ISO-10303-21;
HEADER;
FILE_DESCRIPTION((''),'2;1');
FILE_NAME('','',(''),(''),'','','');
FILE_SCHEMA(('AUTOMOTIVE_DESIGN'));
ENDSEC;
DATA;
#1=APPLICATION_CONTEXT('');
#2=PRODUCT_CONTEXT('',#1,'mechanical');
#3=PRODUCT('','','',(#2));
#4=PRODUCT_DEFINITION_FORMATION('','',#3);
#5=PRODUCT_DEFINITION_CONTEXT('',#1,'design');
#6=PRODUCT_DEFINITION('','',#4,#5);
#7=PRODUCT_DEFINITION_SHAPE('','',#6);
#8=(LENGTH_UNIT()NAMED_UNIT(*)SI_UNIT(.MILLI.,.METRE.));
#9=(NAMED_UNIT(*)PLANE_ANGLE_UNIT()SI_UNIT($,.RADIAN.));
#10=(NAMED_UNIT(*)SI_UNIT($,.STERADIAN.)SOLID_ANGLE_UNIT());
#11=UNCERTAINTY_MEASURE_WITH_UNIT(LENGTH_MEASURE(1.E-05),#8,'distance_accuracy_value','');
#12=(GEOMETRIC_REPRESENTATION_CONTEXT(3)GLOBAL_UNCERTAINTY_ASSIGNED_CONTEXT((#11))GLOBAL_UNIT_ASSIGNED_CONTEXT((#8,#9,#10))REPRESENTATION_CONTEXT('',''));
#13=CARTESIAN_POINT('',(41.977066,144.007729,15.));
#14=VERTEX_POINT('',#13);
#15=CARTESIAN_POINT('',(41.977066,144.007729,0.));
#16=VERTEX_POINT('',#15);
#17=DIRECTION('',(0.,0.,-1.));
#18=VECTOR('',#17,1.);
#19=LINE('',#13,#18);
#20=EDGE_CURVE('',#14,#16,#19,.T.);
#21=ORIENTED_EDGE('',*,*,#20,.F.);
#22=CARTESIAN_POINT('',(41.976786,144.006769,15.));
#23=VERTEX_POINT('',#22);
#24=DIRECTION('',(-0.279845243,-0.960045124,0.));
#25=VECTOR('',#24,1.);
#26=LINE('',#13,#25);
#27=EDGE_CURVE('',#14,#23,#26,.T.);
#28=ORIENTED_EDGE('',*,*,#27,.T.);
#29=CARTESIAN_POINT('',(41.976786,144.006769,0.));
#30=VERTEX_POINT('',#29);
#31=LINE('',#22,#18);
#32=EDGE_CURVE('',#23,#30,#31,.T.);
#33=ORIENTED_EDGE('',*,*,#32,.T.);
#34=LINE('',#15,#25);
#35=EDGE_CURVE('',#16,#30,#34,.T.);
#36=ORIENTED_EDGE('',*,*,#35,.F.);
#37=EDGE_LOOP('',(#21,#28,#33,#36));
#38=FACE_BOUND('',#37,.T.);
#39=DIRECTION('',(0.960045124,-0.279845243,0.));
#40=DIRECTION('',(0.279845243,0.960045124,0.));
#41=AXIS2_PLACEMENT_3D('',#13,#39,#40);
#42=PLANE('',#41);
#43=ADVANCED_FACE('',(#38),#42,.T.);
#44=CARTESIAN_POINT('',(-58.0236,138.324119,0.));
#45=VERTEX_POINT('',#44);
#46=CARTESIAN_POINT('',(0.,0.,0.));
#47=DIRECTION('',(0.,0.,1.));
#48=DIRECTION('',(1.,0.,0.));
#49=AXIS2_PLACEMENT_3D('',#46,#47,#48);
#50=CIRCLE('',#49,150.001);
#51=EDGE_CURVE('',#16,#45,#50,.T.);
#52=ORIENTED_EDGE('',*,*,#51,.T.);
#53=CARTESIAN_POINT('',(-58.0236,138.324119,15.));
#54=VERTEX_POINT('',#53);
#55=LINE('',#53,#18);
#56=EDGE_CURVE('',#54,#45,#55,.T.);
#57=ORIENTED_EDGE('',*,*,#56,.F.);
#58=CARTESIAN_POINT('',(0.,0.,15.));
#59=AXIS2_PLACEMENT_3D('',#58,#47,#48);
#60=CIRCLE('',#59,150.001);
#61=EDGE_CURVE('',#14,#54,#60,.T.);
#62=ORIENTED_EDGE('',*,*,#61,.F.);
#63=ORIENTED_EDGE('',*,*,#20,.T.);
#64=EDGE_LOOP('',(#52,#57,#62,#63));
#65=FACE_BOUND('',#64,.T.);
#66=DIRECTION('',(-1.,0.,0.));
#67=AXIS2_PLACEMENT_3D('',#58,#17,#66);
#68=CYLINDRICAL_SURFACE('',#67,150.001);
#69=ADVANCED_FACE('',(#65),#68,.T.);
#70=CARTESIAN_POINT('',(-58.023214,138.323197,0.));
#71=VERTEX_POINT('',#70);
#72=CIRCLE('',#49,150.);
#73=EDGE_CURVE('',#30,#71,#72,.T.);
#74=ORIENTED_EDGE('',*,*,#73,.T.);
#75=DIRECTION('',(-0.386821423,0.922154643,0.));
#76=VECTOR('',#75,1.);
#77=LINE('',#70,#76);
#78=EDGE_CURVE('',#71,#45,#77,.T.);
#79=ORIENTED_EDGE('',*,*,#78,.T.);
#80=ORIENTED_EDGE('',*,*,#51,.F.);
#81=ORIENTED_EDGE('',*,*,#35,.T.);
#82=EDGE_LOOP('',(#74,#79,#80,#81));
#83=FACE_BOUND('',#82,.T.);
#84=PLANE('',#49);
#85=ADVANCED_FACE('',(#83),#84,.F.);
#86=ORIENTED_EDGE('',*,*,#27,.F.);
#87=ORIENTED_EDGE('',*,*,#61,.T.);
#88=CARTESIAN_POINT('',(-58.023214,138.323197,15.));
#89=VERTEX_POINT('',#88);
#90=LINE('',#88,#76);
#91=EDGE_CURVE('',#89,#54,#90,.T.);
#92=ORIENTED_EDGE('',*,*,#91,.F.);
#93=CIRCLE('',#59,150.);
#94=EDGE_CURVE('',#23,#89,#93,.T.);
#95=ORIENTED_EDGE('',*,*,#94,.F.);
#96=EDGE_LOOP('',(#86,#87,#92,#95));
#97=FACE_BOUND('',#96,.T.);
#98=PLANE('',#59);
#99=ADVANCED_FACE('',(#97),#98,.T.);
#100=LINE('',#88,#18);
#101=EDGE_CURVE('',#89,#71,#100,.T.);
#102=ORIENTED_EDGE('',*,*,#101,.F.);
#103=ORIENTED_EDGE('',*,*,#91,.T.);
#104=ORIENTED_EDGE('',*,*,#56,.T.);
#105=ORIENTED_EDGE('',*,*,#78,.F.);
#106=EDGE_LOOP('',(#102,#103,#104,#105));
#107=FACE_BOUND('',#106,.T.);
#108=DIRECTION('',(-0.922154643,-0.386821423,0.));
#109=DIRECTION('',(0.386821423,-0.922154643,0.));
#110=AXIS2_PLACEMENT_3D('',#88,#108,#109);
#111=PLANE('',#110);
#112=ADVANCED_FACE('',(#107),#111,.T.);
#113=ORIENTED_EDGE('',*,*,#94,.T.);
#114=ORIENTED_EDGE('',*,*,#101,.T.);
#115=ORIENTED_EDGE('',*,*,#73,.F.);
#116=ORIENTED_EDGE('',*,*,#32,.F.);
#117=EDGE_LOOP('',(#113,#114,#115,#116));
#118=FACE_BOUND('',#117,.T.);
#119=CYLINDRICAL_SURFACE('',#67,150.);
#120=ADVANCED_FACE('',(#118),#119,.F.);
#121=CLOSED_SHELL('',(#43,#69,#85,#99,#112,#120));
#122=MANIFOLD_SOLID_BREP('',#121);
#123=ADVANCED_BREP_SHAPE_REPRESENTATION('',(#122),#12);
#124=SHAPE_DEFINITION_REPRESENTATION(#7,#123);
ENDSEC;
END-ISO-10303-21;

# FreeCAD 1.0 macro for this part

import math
import FreeCAD as App
import Part
import Sketcher
from FreeCAD import Vector

doc = App.newDocument("Part")
body = doc.addObject("PartDesign::Body", "Body")

# Sketch on XY plane
sketch1 = body.newObject("Sketcher::SketchObject", "Sketch")
sketch1.AttachmentSupport = (doc.getObject("XY_Plane"), [""])
sketch1.MapMode = "FlatFace"
sketch1.addGeometry([
    Part.ArcOfCircle(Part.Circle(Vector(0, 0, 0), Vector(0, 0, 1), 150), math.radians(74), math.radians(113)),
    Part.LineSegment(Vector(41.9768, 144.0068, 0), Vector(41.9771, 144.0077, 0)),
    Part.ArcOfCircle(Part.Circle(Vector(0, 0, 0), Vector(0, 0, 1), 150.001), math.radians(74), math.radians(113)),
    Part.LineSegment(Vector(-58.0236, 138.3241, 0), Vector(-58.0232, 138.3232, 0)),
], False)
sketch1.addConstraint([
    Sketcher.Constraint("Coincident", 0, 1, 1, 1),
    Sketcher.Constraint("Coincident", 1, 2, 2, 1),
    Sketcher.Constraint("Coincident", 2, 2, 3, 1),
    Sketcher.Constraint("Coincident", 3, 2, 0, 2),
    Sketcher.Constraint("Coincident", 0, 3, -1, 1),
    Sketcher.Constraint("Coincident", 2, 3, -1, 1),
    Sketcher.Constraint("Radius", 0, 150.0),
    Sketcher.Constraint("Radius", 2, 150.001),
    Sketcher.Constraint("DistanceX", 3, 2, 0, 1, 100.0),
    Sketcher.Constraint("DistanceX", 2, 2, -1, 1, 58.0236),
    Sketcher.Constraint("DistanceY", -1, 1, 0, 1, 144.006769),
    Sketcher.Constraint("DistanceY", -1, 1, 1, 2, 144.007729),
])
pad1 = body.newObject("PartDesign::Pad", "Pad")
pad1.Profile = sketch1
pad1.Length = 15

doc.recompute()
